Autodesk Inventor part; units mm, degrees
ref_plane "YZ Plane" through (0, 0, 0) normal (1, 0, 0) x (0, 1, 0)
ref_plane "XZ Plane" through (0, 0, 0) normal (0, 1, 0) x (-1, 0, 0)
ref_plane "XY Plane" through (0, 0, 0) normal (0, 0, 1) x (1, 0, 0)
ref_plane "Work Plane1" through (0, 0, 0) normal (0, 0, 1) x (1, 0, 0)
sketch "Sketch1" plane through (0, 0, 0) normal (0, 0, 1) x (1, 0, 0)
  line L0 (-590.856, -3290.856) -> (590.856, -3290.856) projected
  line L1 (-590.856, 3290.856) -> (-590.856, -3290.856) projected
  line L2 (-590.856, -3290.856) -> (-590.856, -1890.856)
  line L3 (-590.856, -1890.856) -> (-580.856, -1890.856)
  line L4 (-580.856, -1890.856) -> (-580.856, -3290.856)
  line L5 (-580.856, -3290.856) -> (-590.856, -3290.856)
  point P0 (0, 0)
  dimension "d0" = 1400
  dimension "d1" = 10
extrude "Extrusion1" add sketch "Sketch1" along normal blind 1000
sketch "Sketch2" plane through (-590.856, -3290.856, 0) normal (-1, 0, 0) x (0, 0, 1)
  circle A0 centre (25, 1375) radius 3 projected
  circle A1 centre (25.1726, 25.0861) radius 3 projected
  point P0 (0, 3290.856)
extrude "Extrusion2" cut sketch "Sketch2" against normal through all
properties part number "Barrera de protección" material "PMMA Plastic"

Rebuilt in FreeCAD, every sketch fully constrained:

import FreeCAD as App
import Part
import Sketcher
Q = App.Units.Quantity


def add_polygon(sketch, points):
    """Adds a closed chain of lines whose ends are joined by coincident constraints."""
    first, n = sketch.GeometryCount, len(points)
    for a, b in zip(points, points[1:] + points[:1]):
        sketch.addGeometry(Part.LineSegment(App.Vector(*a, 0), App.Vector(*b, 0)), False)
    for i in range(n):
        sketch.addConstraint(Sketcher.Constraint("Coincident", first + i, 2, first + (i + 1) % n, 1))

doc = App.newDocument("Part")
body = doc.addObject("PartDesign::Body", "Body")

# Sketch on XY plane
sketch1 = body.newObject("Sketcher::SketchObject", "Sketch")
sketch1.AttachmentSupport = (doc.getObject("XY_Plane"), [""])
sketch1.MapMode = "FlatFace"
add_polygon(sketch1, [(-591, -1891), (-591, -3291), (-581, -3291), (-581, -1891)])  # lines 0-3
sketch1.addConstraint([
    Sketcher.Constraint("Vertical", 0),
    Sketcher.Constraint("Horizontal", 1),
    Sketcher.Constraint("Vertical", 2),
    Sketcher.Constraint("Horizontal", 3),
    Sketcher.Constraint("DistanceX", 1, 1, 1, 2, Q("10 mm")),
    Sketcher.Constraint("DistanceY", 0, 2, 0, 1, Q("1400 mm")),
    Sketcher.Constraint("DistanceX", 0, 2, -1, 1, Q("590.856 mm")),
    Sketcher.Constraint("DistanceY", 0, 2, -1, 1, Q("3290.856 mm")),
])
pad1 = body.newObject("PartDesign::Pad", "Pad")
pad1.Profile = sketch1
pad1.Length = 1000

# Sketch on YZ plane
sketch2 = body.newObject("Sketcher::SketchObject", "Sketch001")
sketch2.AttachmentSupport = (doc.getObject("YZ_Plane"), [""])
sketch2.MapMode = "FlatFace"
sketch2.AttachmentOffset = App.Placement(App.Vector(0, 0, -590.856), App.Rotation())
sketch2.addGeometry([
    Part.Circle(App.Vector(-1915.9, 25, 0), App.Vector(0, 0, 1), 3),
    Part.Circle(App.Vector(-3265.8, 25.2, 0), App.Vector(0, 0, 1), 3),
], False)
sketch2.addConstraint([
    Sketcher.Constraint("Equal", 0, 1),
    Sketcher.Constraint("Diameter", 0, Q("6 mm")),
    Sketcher.Constraint("DistanceY", -1, 1, 0, 3, Q("25 mm")),
    Sketcher.Constraint("DistanceX", 1, 3, -1, 1, Q("3265.77 mm")),
    Sketcher.Constraint("DistanceX", 0, 3, -1, 1, Q("1915.856 mm")),
    Sketcher.Constraint("DistanceY", -1, 1, 1, 3, Q("25.1726 mm")),
])
pocket1 = body.newObject("PartDesign::Pocket", "Pocket")
pocket1.Profile = sketch2
pocket1.Type = "ThroughAll"
pocket1.Reversed = True

doc.recompute()
